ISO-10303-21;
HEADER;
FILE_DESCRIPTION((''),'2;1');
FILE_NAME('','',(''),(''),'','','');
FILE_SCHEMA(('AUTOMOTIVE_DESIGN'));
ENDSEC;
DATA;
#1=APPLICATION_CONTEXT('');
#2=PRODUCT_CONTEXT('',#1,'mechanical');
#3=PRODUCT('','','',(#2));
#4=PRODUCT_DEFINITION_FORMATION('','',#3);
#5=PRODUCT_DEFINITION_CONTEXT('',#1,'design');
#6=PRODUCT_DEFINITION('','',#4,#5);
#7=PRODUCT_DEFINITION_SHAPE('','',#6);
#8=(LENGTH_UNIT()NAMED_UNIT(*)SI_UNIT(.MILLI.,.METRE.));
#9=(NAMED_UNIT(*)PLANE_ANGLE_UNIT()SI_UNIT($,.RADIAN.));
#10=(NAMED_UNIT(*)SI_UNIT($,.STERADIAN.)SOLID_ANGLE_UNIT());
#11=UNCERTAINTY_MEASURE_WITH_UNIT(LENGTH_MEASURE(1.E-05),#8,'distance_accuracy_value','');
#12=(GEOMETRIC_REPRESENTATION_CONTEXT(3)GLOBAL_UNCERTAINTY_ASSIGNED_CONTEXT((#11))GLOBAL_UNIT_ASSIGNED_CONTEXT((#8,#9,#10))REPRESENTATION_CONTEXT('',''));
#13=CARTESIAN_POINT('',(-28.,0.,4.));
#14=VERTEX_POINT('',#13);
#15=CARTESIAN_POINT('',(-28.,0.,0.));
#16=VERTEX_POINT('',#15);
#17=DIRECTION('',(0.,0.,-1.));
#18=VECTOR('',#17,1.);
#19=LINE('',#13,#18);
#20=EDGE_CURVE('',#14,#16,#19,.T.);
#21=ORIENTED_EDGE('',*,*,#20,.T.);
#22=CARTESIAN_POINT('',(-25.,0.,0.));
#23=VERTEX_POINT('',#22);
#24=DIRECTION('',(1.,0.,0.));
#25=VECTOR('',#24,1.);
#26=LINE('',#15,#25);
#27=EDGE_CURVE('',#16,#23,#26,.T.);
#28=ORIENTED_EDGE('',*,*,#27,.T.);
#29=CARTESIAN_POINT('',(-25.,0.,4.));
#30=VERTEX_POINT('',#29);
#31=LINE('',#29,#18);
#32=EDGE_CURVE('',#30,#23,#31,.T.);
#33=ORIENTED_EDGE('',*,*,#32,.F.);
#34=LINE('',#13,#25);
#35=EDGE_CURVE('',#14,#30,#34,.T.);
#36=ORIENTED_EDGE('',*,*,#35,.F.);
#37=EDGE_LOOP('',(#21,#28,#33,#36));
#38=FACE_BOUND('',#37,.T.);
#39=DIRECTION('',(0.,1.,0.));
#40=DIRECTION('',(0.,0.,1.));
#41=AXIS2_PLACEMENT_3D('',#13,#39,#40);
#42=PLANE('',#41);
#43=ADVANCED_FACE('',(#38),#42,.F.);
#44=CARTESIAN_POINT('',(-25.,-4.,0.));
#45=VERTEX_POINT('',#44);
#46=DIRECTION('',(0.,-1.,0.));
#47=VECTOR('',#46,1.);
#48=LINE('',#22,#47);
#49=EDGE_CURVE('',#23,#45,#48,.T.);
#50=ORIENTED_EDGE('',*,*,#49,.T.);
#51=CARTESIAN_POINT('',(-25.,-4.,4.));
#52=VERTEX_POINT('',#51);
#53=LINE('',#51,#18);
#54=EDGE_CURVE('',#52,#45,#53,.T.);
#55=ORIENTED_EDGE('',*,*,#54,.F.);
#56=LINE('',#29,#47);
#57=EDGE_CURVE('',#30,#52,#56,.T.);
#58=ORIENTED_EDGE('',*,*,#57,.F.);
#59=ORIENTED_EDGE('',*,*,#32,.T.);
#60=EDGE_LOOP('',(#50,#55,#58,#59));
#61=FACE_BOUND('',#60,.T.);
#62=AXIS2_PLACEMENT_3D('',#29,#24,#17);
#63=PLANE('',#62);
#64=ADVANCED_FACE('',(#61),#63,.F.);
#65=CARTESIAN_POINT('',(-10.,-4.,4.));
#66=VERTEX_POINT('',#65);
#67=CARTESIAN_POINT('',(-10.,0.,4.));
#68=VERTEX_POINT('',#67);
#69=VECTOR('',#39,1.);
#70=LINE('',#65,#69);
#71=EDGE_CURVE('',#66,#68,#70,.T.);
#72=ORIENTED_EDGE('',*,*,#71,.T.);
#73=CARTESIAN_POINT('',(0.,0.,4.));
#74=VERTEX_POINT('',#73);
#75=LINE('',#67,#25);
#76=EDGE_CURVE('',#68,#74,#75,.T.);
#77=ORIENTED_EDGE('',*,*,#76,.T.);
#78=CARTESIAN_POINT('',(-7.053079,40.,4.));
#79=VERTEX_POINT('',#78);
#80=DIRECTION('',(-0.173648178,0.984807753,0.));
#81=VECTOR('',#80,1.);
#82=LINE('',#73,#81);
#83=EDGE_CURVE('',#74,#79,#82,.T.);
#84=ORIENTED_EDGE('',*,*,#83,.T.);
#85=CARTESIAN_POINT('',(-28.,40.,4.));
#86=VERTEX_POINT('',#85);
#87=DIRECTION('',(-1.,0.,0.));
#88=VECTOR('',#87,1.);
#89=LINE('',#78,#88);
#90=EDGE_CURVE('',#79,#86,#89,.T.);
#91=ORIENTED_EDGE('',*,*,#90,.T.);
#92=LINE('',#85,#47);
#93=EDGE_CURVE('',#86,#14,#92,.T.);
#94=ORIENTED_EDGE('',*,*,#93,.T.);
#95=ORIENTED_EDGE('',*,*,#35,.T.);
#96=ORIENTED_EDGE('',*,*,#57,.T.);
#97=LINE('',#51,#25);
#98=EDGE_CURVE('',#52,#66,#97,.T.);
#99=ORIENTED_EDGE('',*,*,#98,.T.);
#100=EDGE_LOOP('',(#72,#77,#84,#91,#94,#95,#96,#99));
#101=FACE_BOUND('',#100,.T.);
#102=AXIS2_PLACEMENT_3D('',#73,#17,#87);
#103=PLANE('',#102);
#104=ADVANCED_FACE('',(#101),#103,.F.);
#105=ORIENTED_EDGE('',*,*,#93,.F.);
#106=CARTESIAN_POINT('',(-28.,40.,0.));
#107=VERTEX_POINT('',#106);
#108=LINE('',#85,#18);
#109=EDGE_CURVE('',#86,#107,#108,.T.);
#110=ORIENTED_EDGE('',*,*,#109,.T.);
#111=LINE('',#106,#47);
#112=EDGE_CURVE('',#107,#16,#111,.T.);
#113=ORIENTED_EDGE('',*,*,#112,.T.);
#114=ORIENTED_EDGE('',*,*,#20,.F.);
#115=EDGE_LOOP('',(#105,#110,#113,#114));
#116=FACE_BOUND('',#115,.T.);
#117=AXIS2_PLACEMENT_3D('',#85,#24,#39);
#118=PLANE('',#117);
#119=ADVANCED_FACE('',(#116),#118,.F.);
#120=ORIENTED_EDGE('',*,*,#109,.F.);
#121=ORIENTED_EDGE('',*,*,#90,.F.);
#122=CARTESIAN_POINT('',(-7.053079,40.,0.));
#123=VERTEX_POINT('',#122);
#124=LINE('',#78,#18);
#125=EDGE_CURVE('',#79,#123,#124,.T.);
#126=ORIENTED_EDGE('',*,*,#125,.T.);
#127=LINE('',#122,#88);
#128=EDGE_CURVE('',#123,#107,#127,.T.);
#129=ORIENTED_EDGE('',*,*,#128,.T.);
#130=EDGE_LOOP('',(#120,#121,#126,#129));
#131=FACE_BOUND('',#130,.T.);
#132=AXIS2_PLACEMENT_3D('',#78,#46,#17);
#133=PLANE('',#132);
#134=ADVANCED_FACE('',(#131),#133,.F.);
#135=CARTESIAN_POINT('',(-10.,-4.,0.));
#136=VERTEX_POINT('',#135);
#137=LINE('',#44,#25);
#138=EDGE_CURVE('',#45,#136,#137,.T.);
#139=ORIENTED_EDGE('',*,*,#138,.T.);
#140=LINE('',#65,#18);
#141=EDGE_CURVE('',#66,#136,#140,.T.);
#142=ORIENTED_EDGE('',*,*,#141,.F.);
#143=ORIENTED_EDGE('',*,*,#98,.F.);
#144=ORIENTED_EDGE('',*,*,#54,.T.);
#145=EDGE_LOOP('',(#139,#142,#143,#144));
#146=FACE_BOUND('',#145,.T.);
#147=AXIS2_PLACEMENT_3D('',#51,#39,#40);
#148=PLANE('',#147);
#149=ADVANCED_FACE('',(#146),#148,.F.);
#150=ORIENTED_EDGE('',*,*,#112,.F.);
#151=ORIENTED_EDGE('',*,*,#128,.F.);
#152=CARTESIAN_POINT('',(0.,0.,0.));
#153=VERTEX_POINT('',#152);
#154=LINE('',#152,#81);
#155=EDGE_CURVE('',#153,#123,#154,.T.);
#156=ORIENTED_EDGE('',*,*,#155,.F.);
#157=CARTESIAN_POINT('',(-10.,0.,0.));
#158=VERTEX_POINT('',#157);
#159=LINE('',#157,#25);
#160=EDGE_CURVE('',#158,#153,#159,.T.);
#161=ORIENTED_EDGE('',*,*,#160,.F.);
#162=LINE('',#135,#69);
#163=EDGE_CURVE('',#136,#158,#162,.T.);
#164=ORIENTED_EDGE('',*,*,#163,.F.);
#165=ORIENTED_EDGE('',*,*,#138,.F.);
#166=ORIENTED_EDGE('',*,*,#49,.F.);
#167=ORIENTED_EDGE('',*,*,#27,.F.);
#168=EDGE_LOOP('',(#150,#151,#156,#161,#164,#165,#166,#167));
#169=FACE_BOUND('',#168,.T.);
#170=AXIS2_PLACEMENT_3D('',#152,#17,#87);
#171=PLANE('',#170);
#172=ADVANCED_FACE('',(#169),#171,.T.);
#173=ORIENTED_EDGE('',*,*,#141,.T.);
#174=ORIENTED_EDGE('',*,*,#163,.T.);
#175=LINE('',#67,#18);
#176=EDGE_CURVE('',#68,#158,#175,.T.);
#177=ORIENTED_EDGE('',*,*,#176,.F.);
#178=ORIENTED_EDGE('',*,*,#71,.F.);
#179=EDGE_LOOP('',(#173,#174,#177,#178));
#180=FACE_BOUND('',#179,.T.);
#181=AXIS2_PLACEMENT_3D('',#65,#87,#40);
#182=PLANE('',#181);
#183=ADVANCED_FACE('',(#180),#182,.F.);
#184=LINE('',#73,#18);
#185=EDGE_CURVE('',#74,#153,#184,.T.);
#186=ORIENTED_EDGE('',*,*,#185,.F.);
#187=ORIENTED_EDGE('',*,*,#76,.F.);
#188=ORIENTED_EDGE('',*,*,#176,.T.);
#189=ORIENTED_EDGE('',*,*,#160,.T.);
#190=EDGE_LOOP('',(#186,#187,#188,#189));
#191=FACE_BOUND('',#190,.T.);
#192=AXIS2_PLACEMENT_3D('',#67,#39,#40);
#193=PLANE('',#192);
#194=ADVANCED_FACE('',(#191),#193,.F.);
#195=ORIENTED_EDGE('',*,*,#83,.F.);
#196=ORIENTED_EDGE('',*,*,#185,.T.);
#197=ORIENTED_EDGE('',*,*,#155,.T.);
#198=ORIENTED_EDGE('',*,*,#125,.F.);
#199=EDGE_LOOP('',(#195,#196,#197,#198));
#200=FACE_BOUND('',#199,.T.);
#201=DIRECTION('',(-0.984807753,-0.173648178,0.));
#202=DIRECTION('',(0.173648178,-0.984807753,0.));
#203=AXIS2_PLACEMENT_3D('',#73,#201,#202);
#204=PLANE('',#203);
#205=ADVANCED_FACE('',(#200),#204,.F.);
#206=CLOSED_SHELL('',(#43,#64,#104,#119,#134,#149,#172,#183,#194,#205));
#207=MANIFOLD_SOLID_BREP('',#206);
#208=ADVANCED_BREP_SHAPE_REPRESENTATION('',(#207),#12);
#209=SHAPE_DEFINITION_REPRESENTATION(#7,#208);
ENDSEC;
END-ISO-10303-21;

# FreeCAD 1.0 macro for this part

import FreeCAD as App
import Part
import Sketcher
Q = App.Units.Quantity


def add_polygon(sketch, points):
    """Adds a closed chain of lines whose ends are joined by coincident constraints."""
    first, n = sketch.GeometryCount, len(points)
    for a, b in zip(points, points[1:] + points[:1]):
        sketch.addGeometry(Part.LineSegment(App.Vector(*a, 0), App.Vector(*b, 0)), False)
    for i in range(n):
        sketch.addConstraint(Sketcher.Constraint("Coincident", first + i, 2, first + (i + 1) % n, 1))

doc = App.newDocument("Part")
body = doc.addObject("PartDesign::Body", "Body")

# Sketch on XY plane
sketch1 = doc.addObject("Sketcher::SketchObject", "Sketch")
body.addObject(sketch1)
sketch1.AttachmentSupport = (doc.XY_Plane, [""])
sketch1.MapMode = "FlatFace"
add_polygon(sketch1, [(0, 0), (-7.1, 40), (-28, 40), (-28, 0), (-25, 0), (-25, -4), (-10, -4), (-10, 0)])  # lines 0-7
sketch1.addConstraint(Sketcher.Constraint("Horizontal", 1))
sketch1.addConstraint(Sketcher.Constraint("Vertical", 2))
sketch1.addConstraint(Sketcher.Constraint("Horizontal", 3))
sketch1.addConstraint(Sketcher.Constraint("Vertical", 4))
sketch1.addConstraint(Sketcher.Constraint("Horizontal", 5))
sketch1.addConstraint(Sketcher.Constraint("Vertical", 6))
sketch1.addConstraint(Sketcher.Constraint("Horizontal", 7))
sketch1.addConstraint(Sketcher.Constraint("Coincident", 7, 2, -1, 1))
sketch1.addConstraint(Sketcher.Constraint("PointOnObject", 2, 2, -1))
sketch1.addConstraint(Sketcher.Constraint("DistanceX", 3, 1, 3, 2, Q("3 mm")))
sketch1.addConstraint(Sketcher.Constraint("DistanceX", 5, 1, 5, 2, Q("15 mm")))
sketch1.addConstraint(Sketcher.Constraint("DistanceX", 7, 1, 7, 2, Q("10 mm")))
sketch1.addConstraint(Sketcher.Constraint("DistanceY", 2, 2, 2, 1, Q("40 mm")))
sketch1.addConstraint(Sketcher.Constraint("DistanceY", 4, 2, 4, 1, Q("4 mm")))
sketch1.addConstraint(Sketcher.Constraint("Angle", 0, Q("100 deg")))
pad1 = doc.addObject("PartDesign::Pad", "Pad")
body.addObject(pad1)
pad1.Profile = sketch1
pad1.Length = 4

doc.recompute()
